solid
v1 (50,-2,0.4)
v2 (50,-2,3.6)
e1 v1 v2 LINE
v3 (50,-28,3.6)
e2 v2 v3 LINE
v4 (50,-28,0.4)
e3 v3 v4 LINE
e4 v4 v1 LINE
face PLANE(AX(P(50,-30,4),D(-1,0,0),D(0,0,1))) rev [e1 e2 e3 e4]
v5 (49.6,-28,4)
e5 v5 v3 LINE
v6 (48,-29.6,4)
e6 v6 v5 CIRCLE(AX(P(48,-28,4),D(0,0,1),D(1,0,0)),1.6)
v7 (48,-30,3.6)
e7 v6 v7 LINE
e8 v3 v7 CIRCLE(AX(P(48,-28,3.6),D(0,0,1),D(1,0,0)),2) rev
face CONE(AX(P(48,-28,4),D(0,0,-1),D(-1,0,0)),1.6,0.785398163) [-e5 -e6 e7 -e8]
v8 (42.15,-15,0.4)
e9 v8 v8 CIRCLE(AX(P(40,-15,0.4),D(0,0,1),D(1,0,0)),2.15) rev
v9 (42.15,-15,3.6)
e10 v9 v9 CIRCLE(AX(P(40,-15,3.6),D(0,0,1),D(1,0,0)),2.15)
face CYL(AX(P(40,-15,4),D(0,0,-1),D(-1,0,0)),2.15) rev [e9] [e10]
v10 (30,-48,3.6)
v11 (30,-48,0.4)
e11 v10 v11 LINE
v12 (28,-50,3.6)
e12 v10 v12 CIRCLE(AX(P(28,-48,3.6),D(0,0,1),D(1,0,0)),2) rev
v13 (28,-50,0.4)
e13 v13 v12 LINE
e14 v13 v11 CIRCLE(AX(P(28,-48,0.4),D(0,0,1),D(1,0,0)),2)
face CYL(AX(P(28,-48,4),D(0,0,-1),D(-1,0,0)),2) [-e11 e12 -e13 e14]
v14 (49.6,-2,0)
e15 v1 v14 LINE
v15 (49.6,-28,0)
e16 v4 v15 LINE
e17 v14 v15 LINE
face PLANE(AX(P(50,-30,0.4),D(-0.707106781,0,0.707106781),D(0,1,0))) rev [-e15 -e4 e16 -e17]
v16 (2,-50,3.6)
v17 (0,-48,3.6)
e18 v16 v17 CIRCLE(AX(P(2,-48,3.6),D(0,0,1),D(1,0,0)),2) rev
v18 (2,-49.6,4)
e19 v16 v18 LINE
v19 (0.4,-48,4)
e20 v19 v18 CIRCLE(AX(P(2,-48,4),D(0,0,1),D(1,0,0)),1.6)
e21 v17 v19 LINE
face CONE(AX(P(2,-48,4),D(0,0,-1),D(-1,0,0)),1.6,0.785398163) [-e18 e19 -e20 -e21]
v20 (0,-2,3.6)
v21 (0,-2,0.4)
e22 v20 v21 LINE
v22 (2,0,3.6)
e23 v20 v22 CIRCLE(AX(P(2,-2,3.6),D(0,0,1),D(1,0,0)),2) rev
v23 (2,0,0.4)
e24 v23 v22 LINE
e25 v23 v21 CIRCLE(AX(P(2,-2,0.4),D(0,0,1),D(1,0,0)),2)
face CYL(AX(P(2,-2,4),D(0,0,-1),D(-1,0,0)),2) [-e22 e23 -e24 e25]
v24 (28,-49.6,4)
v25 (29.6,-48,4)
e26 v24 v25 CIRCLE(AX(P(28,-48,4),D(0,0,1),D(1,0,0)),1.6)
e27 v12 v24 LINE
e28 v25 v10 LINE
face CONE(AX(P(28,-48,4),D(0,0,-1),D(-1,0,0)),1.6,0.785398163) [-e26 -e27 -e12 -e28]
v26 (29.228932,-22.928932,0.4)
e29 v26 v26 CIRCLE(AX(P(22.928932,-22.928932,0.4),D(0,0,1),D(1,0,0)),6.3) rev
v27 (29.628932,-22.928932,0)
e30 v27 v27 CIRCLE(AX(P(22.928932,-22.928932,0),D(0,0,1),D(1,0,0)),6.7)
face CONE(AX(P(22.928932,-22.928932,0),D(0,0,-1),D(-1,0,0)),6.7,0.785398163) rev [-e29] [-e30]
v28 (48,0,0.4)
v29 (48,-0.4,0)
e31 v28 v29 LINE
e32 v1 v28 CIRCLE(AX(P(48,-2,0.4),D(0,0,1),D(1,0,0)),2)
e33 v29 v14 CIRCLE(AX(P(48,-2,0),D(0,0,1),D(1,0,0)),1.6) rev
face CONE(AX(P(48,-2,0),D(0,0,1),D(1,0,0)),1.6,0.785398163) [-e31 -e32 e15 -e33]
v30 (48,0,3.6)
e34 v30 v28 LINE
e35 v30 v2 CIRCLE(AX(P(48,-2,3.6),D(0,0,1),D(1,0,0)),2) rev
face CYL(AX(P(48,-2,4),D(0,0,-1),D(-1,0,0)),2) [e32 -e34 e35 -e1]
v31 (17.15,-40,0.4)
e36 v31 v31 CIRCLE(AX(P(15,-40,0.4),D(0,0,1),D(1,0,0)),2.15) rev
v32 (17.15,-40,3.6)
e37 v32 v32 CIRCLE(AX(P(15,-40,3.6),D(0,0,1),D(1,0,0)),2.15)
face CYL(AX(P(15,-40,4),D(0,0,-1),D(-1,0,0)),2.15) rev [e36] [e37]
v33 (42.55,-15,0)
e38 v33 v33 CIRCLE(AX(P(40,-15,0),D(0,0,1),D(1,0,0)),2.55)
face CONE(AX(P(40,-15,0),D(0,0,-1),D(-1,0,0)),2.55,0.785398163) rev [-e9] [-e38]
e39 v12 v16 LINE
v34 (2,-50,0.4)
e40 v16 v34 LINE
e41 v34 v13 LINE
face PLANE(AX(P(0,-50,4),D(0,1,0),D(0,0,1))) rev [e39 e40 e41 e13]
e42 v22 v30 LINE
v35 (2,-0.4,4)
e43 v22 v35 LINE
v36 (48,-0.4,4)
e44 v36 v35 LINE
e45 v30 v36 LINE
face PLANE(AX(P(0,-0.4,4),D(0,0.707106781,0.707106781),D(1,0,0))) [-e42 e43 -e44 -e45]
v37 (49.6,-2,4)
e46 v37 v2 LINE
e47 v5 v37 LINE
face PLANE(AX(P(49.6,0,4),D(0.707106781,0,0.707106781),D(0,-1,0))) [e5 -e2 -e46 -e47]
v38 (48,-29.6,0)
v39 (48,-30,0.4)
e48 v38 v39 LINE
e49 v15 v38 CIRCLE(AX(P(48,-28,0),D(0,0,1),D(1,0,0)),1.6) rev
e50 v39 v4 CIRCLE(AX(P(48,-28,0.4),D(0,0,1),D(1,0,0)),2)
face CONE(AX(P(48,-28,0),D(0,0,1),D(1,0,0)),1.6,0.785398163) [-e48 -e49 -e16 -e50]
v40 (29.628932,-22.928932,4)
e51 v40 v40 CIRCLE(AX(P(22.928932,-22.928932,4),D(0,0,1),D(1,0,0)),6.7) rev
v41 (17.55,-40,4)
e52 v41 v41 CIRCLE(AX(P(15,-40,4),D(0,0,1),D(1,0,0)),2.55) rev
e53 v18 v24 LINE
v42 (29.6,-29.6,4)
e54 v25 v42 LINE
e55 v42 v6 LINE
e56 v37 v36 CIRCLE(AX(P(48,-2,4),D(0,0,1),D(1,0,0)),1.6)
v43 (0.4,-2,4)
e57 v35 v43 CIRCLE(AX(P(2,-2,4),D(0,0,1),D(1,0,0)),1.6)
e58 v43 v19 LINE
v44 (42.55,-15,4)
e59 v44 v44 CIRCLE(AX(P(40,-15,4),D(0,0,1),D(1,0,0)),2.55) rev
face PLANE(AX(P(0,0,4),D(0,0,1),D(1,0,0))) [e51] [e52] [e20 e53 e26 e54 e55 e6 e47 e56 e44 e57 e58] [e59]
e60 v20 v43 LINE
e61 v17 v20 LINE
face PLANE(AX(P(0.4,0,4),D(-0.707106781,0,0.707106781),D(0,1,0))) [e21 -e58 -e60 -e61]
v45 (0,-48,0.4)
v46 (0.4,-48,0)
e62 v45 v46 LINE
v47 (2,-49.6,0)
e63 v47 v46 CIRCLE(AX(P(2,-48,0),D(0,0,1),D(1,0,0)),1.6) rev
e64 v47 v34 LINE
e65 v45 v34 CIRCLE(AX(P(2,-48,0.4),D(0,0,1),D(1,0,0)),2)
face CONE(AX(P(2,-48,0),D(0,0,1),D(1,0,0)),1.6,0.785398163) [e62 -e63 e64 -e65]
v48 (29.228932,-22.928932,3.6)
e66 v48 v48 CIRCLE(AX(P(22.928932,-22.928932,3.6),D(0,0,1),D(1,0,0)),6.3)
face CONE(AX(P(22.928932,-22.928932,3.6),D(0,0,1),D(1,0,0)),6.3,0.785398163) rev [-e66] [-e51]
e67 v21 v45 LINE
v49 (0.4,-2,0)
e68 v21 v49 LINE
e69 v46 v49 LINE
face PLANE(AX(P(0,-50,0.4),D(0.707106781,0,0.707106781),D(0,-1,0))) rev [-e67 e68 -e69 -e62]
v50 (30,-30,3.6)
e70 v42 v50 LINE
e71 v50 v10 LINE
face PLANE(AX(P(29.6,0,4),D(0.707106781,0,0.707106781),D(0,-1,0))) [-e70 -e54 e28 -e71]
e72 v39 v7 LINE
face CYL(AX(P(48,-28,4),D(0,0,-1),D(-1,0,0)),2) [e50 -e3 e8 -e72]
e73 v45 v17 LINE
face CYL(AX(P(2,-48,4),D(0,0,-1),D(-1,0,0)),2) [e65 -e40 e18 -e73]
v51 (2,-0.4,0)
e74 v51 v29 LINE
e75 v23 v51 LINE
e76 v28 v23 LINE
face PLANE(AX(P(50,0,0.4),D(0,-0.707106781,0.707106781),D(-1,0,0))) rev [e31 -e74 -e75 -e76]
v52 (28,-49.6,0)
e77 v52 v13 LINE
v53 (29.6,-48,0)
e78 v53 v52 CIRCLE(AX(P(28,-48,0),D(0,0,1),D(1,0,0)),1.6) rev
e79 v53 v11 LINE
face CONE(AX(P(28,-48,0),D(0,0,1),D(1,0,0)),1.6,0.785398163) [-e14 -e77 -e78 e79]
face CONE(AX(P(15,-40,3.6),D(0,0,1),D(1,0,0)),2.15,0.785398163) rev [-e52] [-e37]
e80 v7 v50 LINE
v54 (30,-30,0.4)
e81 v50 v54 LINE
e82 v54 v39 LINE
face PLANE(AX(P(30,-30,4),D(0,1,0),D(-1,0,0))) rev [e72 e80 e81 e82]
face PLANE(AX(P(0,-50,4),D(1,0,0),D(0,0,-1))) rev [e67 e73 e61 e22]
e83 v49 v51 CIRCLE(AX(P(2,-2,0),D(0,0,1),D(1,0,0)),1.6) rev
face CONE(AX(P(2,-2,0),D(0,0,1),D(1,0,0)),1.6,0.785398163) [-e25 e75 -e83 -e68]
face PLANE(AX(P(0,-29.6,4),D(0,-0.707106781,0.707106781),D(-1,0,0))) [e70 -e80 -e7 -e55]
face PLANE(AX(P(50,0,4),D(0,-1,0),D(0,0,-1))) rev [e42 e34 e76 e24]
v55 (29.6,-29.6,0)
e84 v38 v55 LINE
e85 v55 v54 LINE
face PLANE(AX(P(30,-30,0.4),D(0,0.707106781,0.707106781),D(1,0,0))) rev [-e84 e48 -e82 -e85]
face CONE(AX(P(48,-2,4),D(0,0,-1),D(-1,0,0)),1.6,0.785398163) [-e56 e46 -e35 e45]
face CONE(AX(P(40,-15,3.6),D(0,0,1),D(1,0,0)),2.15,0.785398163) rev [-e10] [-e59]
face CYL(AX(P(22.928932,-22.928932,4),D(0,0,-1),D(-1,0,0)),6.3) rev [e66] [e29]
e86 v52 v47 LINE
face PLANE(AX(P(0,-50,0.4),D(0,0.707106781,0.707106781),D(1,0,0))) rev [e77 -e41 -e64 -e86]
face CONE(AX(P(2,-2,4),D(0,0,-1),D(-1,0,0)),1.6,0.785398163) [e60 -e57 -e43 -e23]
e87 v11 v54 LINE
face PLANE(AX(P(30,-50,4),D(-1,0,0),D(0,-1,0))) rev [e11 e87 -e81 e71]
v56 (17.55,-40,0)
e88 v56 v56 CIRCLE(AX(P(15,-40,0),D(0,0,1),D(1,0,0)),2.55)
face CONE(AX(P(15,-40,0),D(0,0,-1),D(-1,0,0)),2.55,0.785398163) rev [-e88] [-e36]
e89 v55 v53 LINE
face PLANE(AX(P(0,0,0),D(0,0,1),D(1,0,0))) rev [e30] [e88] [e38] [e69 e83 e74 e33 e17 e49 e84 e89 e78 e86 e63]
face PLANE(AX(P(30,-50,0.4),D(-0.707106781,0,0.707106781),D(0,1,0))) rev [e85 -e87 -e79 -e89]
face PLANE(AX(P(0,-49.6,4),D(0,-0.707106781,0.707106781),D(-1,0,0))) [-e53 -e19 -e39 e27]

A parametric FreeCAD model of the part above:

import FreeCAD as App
import Part
import Sketcher
from FreeCAD import Vector


def edges_at(feature, points):
    """Names of the edges that pass closest to the given points."""
    edges = feature.Shape.Edges
    near = lambda p: min(range(len(edges)), key=lambda i: edges[i].distToShape(Part.Vertex(*p))[0])
    return sorted({f"Edge{near(p) + 1}" for p in points})


def add_polygon(sketch, points):
    """Adds a closed chain of lines whose ends are joined by coincident constraints."""
    first, n = sketch.GeometryCount, len(points)
    for a, b in zip(points, points[1:] + points[:1]):
        sketch.addGeometry(Part.LineSegment(App.Vector(*a, 0), App.Vector(*b, 0)), False)
    for i in range(n):
        sketch.addConstraint(Sketcher.Constraint("Coincident", first + i, 2, first + (i + 1) % n, 1))

doc = App.newDocument("Part")
body = doc.addObject("PartDesign::Body", "Body")

# Sketch on XY plane
sketch1 = body.newObject("Sketcher::SketchObject", "Sketch")
sketch1.AttachmentSupport = (doc.getObject("XY_Plane"), [""])
sketch1.MapMode = "FlatFace"
add_polygon(sketch1, [(0, -50), (30, -50), (30, -30), (50, -30), (50, 0), (0, 0)])  # lines 0-5
sketch1.addGeometry(Part.Circle(Vector(15, -40, 0), Vector(0, 0, 1), 2.1), False)  # 6
sketch1.addGeometry(Part.Circle(Vector(22.9, -22.9, 0), Vector(0, 0, 1), 6.3), False)  # 7
sketch1.addGeometry(Part.Circle(Vector(40, -15, 0), Vector(0, 0, 1), 2.1), False)  # 8
sketch1.addConstraint([
    Sketcher.Constraint("Horizontal", 0),
    Sketcher.Constraint("Vertical", 1),
    Sketcher.Constraint("Horizontal", 2),
    Sketcher.Constraint("Vertical", 3),
    Sketcher.Constraint("Horizontal", 4),
    Sketcher.Constraint("Vertical", 5),
    Sketcher.Constraint("Coincident", 4, 2, -1, 1),
    Sketcher.Constraint("Equal", 6, 8),
    Sketcher.Constraint("Equal", 2, 1),
    Sketcher.Constraint("Equal", 0, 3),
    Sketcher.Constraint("Diameter", 6, 4.3),
    Sketcher.Constraint("Diameter", 7, 12.6),
    Sketcher.Constraint("DistanceX", 0, 1, 0, 2, 30.0),
    Sketcher.Constraint("DistanceX", 2, 1, 2, 2, 20.0),
    Sketcher.Constraint("DistanceX", -1, 1, 6, 3, 15.0),
    Sketcher.Constraint("DistanceY", 6, 3, -1, 1, 40.0),
    Sketcher.Constraint("DistanceX", -1, 1, 8, 3, 40.0),
    Sketcher.Constraint("DistanceY", 8, 3, -1, 1, 15.0),
    Sketcher.Constraint("DistanceX", -1, 1, 7, 3, 22.928932),
    Sketcher.Constraint("DistanceY", 7, 3, -1, 1, 22.928932),
])
pad1 = body.newObject("PartDesign::Pad", "Pad")
pad1.Profile = sketch1
pad1.Length = 4
doc.recompute()

fillet = body.newObject("PartDesign::Fillet", "Fillet")
fillet.Base = (pad1, edges_at(pad1, [
    (0, 0, 2),
    (50, 0, 2),
    (50, -30, 2),
    (30, -50, 2),
    (0, -50, 2),
]))
fillet.Radius = 2
doc.recompute()

chamfer = body.newObject("PartDesign::Chamfer", "Chamfer")
chamfer.Base = (fillet, edges_at(fillet, [
    (39, -30, 4),
    (12.85, -40, 0),
    (12.85, -40, 4),
    (37.85, -15, 0),
    (37.85, -15, 4),
    (16.629, -22.929, 0),
    (16.629, -22.929, 4),
    (0, -25, 0),
    (0, -25, 4),
    (25, 0, 0),
    (50, -15, 0),
    (30, -39, 0),
    (15, -50, 0),
    (29.414, -49.414, 0),
    (0.586, -49.414, 0),
    (49.414, -29.414, 0),
    (49.414, -0.586, 0),
    (0.586, -0.586, 0),
    (25, 0, 4),
    (15, -50, 4),
    (30, -39, 4),
    (50, -15, 4),
    (29.414, -49.414, 4),
    (0.586, -49.414, 4),
    (49.414, -29.414, 4),
    (49.414, -0.586, 4),
    (0.586, -0.586, 4),
    (39, -30, 0),
]))
chamfer.Size = 0.4

doc.recompute()
